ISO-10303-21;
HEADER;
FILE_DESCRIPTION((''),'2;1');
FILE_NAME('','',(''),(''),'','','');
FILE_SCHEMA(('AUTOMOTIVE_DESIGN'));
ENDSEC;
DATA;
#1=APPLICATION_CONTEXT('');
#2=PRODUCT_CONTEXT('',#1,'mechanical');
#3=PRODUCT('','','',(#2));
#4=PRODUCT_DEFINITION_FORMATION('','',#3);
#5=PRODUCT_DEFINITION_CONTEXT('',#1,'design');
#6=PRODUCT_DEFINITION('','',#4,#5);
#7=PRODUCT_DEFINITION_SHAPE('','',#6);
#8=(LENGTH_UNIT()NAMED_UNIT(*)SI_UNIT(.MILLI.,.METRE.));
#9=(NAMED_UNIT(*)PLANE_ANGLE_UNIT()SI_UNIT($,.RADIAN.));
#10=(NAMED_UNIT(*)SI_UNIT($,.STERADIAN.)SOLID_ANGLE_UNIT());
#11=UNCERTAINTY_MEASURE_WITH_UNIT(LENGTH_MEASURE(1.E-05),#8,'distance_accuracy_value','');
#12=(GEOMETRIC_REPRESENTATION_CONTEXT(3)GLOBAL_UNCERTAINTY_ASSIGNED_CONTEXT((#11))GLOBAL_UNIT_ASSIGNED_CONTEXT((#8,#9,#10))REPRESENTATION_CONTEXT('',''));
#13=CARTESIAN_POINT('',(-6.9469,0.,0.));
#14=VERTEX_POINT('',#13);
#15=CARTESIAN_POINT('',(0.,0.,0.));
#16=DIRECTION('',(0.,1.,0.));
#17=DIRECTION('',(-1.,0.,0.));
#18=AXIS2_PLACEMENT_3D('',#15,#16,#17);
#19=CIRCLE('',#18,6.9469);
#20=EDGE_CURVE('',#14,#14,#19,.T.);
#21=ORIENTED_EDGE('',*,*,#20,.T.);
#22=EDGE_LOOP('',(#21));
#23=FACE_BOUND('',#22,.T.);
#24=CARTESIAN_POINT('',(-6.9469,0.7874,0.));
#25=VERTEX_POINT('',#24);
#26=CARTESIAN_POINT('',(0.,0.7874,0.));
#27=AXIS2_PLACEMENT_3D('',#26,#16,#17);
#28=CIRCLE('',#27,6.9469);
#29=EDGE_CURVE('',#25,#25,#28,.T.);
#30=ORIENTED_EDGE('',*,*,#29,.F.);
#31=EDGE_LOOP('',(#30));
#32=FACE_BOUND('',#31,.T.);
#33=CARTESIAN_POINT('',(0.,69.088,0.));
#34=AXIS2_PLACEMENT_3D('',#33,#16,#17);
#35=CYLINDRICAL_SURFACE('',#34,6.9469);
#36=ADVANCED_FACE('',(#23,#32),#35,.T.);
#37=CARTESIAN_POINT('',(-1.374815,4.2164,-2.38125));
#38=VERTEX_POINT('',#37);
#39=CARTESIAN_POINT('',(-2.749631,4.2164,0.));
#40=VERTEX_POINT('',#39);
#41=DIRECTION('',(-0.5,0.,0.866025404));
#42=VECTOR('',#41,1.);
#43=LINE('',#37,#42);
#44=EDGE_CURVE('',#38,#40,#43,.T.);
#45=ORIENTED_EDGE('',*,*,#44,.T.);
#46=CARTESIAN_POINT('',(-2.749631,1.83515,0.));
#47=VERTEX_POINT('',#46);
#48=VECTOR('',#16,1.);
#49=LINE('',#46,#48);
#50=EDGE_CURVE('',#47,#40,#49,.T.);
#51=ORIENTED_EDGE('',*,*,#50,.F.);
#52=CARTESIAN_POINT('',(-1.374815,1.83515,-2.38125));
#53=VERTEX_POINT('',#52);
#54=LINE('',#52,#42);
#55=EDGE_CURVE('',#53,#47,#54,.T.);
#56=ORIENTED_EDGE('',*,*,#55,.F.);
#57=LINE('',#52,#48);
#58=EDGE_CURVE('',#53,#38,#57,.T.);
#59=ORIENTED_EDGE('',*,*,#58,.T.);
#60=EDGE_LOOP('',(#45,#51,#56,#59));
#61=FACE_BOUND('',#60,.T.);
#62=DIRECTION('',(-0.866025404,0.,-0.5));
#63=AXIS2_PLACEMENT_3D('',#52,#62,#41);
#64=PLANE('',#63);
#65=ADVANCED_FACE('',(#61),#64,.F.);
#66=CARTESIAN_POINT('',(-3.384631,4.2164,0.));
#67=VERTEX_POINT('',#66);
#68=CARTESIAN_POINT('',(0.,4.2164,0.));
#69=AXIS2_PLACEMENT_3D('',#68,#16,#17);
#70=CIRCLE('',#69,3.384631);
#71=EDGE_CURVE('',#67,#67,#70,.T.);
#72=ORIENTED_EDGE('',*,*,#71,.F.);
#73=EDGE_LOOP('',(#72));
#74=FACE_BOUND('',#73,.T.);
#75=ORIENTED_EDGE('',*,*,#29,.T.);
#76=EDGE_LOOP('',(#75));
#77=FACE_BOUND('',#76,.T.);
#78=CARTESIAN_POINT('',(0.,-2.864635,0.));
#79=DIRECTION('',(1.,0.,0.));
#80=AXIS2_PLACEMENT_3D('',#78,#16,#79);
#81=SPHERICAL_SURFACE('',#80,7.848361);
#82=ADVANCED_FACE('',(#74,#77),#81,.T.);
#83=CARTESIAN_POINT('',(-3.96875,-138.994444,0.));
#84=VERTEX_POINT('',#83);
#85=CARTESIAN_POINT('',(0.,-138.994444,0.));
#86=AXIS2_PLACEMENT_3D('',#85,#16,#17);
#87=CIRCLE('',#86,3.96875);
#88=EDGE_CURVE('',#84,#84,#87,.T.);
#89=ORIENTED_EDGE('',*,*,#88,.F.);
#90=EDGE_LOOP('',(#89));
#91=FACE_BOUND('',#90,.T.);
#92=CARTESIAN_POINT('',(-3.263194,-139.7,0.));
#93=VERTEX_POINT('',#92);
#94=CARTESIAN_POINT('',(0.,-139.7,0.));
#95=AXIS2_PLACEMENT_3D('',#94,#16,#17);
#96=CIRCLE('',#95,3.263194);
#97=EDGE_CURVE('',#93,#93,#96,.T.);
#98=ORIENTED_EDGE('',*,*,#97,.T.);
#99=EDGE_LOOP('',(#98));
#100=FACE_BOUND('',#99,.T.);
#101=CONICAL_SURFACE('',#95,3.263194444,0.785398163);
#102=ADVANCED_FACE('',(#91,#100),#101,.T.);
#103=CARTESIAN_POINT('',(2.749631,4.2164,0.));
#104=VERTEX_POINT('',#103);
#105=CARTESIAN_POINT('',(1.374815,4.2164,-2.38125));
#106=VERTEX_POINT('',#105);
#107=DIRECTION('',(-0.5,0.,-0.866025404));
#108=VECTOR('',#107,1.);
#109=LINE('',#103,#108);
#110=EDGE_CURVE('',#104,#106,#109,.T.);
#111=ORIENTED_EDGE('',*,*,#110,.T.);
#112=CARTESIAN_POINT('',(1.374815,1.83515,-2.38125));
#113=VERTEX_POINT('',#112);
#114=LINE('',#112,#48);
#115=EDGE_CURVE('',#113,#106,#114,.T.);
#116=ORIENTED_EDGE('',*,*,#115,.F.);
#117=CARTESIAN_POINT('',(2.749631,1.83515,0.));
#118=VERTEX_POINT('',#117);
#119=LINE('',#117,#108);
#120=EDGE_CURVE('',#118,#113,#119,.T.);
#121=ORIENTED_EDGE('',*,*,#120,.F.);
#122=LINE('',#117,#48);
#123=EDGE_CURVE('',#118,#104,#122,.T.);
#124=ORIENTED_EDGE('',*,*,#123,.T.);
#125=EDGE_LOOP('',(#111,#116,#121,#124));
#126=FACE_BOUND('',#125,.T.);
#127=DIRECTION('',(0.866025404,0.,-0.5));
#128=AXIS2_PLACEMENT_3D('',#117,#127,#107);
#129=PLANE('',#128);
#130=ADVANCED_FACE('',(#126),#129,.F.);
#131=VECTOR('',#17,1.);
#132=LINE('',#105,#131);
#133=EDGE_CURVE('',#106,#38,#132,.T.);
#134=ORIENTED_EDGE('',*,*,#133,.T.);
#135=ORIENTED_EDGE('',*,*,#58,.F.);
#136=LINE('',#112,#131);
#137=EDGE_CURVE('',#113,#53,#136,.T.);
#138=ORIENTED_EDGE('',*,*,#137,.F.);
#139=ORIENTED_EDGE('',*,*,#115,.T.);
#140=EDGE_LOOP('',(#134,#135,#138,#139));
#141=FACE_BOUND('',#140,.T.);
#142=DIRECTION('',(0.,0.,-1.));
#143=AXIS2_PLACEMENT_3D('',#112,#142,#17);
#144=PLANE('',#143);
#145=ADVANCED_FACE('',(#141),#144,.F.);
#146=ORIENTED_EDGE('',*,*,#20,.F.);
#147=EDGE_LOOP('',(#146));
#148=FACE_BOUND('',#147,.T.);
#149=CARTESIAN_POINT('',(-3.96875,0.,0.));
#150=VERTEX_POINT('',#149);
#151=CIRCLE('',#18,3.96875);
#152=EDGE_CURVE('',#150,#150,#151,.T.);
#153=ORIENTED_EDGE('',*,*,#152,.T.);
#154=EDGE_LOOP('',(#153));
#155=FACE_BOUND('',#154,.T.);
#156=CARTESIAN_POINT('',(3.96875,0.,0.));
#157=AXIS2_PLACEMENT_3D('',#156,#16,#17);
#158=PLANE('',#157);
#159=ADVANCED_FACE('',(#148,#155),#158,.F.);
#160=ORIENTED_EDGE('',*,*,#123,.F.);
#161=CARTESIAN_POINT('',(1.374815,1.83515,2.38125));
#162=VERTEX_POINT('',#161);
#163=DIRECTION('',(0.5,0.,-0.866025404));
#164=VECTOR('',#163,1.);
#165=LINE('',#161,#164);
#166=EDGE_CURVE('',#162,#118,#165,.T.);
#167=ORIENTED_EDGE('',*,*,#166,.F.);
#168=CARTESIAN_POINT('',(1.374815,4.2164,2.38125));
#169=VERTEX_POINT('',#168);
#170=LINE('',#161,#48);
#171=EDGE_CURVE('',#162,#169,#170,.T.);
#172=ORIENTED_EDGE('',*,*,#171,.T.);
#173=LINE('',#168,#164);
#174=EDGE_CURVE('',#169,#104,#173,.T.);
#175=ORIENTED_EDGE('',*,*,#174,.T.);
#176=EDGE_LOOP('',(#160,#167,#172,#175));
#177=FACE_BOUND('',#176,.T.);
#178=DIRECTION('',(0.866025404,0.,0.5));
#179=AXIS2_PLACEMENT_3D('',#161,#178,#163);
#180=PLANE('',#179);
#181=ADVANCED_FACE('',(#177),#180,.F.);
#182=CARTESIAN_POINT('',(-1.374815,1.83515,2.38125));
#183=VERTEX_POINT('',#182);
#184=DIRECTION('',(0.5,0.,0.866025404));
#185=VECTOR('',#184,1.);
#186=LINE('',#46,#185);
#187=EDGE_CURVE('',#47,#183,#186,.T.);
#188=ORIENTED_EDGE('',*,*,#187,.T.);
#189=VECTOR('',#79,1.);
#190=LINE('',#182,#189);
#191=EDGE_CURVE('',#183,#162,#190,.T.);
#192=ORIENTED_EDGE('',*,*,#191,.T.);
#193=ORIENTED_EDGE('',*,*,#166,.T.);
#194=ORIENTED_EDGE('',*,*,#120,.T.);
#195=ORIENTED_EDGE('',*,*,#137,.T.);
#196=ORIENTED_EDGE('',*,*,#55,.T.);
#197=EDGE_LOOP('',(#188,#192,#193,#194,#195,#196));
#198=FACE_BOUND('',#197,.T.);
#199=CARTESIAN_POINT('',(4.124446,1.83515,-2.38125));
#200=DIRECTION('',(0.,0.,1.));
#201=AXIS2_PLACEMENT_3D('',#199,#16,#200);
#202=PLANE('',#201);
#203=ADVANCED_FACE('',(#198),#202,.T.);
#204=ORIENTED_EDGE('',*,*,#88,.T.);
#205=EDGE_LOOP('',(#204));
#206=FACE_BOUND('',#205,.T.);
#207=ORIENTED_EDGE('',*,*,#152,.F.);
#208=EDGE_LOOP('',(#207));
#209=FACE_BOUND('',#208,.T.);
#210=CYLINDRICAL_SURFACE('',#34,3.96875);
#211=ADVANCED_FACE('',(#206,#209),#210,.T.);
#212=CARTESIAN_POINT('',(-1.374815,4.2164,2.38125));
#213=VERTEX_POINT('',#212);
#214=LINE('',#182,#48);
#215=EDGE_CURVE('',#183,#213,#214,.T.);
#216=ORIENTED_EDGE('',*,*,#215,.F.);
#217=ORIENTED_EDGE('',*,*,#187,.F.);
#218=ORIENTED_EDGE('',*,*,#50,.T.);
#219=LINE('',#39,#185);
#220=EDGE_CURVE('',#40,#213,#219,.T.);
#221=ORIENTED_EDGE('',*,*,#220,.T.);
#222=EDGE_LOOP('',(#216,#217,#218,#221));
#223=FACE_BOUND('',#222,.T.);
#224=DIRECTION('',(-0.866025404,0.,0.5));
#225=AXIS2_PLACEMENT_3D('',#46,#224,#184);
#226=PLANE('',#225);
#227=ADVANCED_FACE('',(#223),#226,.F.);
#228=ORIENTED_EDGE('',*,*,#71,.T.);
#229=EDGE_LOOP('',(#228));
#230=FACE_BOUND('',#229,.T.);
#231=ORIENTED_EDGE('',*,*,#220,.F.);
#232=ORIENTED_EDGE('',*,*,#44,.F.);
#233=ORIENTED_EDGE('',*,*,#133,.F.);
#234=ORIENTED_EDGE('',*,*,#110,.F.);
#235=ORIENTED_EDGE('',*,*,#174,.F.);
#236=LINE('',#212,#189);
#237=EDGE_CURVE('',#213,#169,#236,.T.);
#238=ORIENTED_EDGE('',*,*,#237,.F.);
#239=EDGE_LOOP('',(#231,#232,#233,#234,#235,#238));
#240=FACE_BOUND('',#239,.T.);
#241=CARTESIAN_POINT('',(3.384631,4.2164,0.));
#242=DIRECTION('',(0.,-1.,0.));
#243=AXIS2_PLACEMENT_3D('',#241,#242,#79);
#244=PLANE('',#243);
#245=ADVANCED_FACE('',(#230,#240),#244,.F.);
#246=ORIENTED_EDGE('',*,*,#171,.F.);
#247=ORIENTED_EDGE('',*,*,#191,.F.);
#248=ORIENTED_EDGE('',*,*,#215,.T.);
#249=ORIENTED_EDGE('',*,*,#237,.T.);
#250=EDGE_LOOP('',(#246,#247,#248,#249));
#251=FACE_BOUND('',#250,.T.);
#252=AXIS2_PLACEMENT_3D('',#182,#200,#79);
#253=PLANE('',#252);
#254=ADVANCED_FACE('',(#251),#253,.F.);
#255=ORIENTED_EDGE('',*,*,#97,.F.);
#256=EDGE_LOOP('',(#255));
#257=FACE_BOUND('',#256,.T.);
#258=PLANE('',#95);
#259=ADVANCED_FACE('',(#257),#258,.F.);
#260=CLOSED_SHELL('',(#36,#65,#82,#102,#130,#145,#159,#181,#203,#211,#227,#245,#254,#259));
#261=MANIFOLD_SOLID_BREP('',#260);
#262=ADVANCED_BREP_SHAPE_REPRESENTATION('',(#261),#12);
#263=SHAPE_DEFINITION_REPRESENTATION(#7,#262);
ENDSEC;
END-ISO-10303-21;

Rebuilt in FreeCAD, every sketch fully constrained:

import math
import FreeCAD as App
import Part
import Sketcher
Q = App.Units.Quantity


def add_polygon(sketch, points):
    """Adds a closed chain of lines whose ends are joined by coincident constraints."""
    first, n = sketch.GeometryCount, len(points)
    for a, b in zip(points, points[1:] + points[:1]):
        sketch.addGeometry(Part.LineSegment(App.Vector(*a, 0), App.Vector(*b, 0)), False)
    for i in range(n):
        sketch.addConstraint(Sketcher.Constraint("Coincident", first + i, 2, first + (i + 1) % n, 1))

doc = App.newDocument("Part")
body = doc.addObject("PartDesign::Body", "Body")

sketch1 = doc.addObject("Sketcher::SketchObject", "Sketch")
body.addObject(sketch1)
sketch1.AttachmentSupport = (doc.XY_Plane, [""])
sketch1.MapMode = "FlatFace"
sketch1.addGeometry(Part.LineSegment(App.Vector(0, -139.7, 0), App.Vector(3.263194, -139.7, 0)), False)
sketch1.addGeometry(Part.LineSegment(App.Vector(3.263194, -139.7, 0), App.Vector(3.96875, -138.994444, 0)), False)
sketch1.addGeometry(Part.LineSegment(App.Vector(3.96875, -138.994444, 0), App.Vector(3.96875, 0, 0)), False)
sketch1.addGeometry(Part.LineSegment(App.Vector(3.96875, 0, 0), App.Vector(6.9469, 0, 0)), False)
sketch1.addGeometry(Part.LineSegment(App.Vector(6.9469, 0, 0), App.Vector(6.9469, 0.7874, 0)), False)
sketch1.addGeometry(Part.ArcOfCircle(Part.Circle(App.Vector(0, -2.864635, 0), App.Vector(0, 0, 1), 7.848361), math.radians(27.731224), math.radians(64.452885)), False)
sketch1.addGeometry(Part.LineSegment(App.Vector(3.384631, 4.2164, 0), App.Vector(0, 4.2164, 0)), False)
sketch1.addGeometry(Part.LineSegment(App.Vector(0, 4.2164, 0), App.Vector(0, -139.7, 0)), False)
sketch1.addConstraint(Sketcher.Constraint("Coincident", 0, 2, 1, 1))
sketch1.addConstraint(Sketcher.Constraint("Coincident", 1, 2, 2, 1))
sketch1.addConstraint(Sketcher.Constraint("Coincident", 2, 2, 3, 1))
sketch1.addConstraint(Sketcher.Constraint("Coincident", 3, 2, 4, 1))
sketch1.addConstraint(Sketcher.Constraint("Coincident", 4, 2, 5, 1))
sketch1.addConstraint(Sketcher.Constraint("Coincident", 5, 2, 6, 1))
sketch1.addConstraint(Sketcher.Constraint("Coincident", 6, 2, 7, 1))
sketch1.addConstraint(Sketcher.Constraint("Coincident", 7, 2, 0, 1))
sketch1.addConstraint(Sketcher.Constraint("Horizontal", 0))
sketch1.addConstraint(Sketcher.Constraint("Vertical", 2))
sketch1.addConstraint(Sketcher.Constraint("Horizontal", 3))
sketch1.addConstraint(Sketcher.Constraint("Vertical", 4))
sketch1.addConstraint(Sketcher.Constraint("Horizontal", 6))
sketch1.addConstraint(Sketcher.Constraint("Vertical", 7))
sketch1.addConstraint(Sketcher.Constraint("PointOnObject", 5, 3, -2))
sketch1.addConstraint(Sketcher.Constraint("PointOnObject", 2, 2, -1))
sketch1.addConstraint(Sketcher.Constraint("PointOnObject", 6, 2, -2))
sketch1.addConstraint(Sketcher.Constraint("Angle", 1, Q("45 deg")))
sketch1.addConstraint(Sketcher.Constraint("DistanceY", 0, 2, -1, 1, Q("5.5 in")))
sketch1.addConstraint(Sketcher.Constraint("DistanceY", 4, 1, 4, 2, Q("0.031 in")))
sketch1.addConstraint(Sketcher.Constraint("DistanceY", 7, 2, 7, 1, Q("5.666 in")))
sketch1.addConstraint(Sketcher.Constraint("DistanceX", -1, 1, 1, 2, Q("0.15625 in")))
sketch1.addConstraint(Sketcher.Constraint("Radius", 5, Q("7.848361 mm")))
sketch1.addConstraint(Sketcher.Constraint("DistanceX", -1, 1, 3, 2, Q("0.2735 in")))
sketch1.addConstraint(Sketcher.Constraint("DistanceX", 0, 1, 0, 2, Q("3.263194 mm")))
revolution = doc.addObject("PartDesign::Revolution", "Revolution")
body.addObject(revolution)
revolution.Profile = sketch1
revolution.ReferenceAxis = (sketch1, ["V_Axis"])
revolution.Angle = 360

sketch2 = doc.addObject("Sketcher::SketchObject", "Sketch001")
body.addObject(sketch2)
sketch2.AttachmentSupport = (doc.XZ_Plane, [""])
sketch2.MapMode = "FlatFace"
sketch2.AttachmentOffset = App.Placement(App.Vector(0, 0, -0.166 * 25.4), App.Rotation())
add_polygon(sketch2, [(2.749631, 0), (1.374815, -2.38125), (-1.374815, -2.38125), (-2.749631, 0), (-1.374815, 2.38125), (1.374815, 2.38125)])
sketch2.addConstraint(Sketcher.Constraint("Horizontal", 1))
sketch2.addConstraint(Sketcher.Constraint("Horizontal", 4))
sketch2.addConstraint(Sketcher.Constraint("Symmetric", 0, 2, 3, 2, -1, 1))
sketch2.addConstraint(Sketcher.Constraint("Symmetric", 2, 2, 5, 2, -1, 1))
sketch2.addConstraint(Sketcher.Constraint("PointOnObject", 2, 2, -1))
sketch2.addConstraint(Sketcher.Constraint("Parallel", 2, 5))
sketch2.addConstraint(Sketcher.Constraint("Vertical", 1, 2, 3, 2))
sketch2.addConstraint(Sketcher.Constraint("Angle", 0, Q("-120 deg")))
sketch2.addConstraint(Sketcher.Constraint("DistanceY", 0, 2, -1, 1, Q("0.09375 in")))
sketch2.addConstraint(Sketcher.Constraint("DistanceX", 1, 2, 1, 1, Q("2.749631 mm")))
pocket1 = doc.addObject("PartDesign::Pocket", "Pocket")
body.addObject(pocket1)
pocket1.Profile = sketch2
pocket1.Length = Q("0.09375 in")
pocket1.Reversed = True

doc.recompute()
